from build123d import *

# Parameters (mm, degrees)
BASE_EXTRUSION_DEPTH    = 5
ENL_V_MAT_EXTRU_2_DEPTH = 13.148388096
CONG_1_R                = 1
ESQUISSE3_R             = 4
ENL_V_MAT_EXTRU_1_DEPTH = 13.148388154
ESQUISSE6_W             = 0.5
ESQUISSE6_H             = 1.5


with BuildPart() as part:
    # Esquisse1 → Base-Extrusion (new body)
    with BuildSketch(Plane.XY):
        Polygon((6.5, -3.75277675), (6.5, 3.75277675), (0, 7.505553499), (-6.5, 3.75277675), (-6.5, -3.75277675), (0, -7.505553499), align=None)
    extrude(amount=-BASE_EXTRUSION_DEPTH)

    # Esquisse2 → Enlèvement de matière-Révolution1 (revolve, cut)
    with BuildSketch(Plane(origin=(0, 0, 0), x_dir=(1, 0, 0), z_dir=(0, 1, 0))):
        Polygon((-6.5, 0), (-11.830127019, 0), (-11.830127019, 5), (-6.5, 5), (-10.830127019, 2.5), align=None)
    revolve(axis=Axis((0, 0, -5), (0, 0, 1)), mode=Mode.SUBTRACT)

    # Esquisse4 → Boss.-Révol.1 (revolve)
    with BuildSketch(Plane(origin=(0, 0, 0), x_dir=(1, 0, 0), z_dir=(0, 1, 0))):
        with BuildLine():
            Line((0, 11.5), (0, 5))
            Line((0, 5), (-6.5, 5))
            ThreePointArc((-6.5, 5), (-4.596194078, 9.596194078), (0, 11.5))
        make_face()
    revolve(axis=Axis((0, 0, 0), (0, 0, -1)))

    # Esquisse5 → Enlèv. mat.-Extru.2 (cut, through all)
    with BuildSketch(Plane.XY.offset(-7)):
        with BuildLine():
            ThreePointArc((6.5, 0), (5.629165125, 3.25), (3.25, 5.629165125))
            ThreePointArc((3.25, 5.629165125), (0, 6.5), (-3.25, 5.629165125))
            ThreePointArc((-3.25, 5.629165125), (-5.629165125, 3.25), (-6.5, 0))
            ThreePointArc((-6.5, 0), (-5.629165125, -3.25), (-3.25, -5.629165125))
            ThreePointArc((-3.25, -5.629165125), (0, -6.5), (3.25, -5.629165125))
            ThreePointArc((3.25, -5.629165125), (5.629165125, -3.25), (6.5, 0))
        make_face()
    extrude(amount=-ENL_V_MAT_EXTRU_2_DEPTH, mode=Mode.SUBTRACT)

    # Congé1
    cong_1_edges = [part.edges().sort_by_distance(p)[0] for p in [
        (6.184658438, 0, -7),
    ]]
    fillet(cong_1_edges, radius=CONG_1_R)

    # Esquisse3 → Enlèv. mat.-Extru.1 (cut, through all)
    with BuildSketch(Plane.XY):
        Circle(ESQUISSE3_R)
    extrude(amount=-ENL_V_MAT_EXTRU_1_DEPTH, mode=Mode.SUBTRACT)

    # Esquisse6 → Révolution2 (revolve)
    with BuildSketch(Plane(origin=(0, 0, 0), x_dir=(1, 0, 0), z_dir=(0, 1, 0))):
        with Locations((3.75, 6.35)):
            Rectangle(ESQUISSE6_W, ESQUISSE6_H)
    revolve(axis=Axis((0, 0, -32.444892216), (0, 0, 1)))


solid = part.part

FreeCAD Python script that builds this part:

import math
import FreeCAD as App
import Part
import Sketcher
from FreeCAD import Vector
Q = App.Units.Quantity


def edges_at(feature, points):
    """Names of the edges that pass closest to the given points."""
    edges = feature.Shape.Edges
    near = lambda p: min(range(len(edges)), key=lambda i: edges[i].distToShape(Part.Vertex(*p))[0])
    return sorted({f"Edge{near(p) + 1}" for p in points})

doc = App.newDocument("Part")
params = doc.addObject("Spreadsheet::Sheet", "Params")
for row, (alias, value) in enumerate([
    ("pad1_length", "5 mm"),
    ("sketch2_height", "5 mm"),
    ("groove_angle", "360 deg"),
    ("sketch3_radius", "6.5 mm"),
    ("revolution_angle", "360 deg"),
    ("sketch4_radius", "6.5 mm"),
    ("fillet_radius", "1 mm"),
    ("sketch5_diameter", "8 mm"),
    ("sketch6_width", "0.5 mm"),
    ("sketch6_height", "1.5 mm"),
    ("revolution2_angle", "360 deg"),
], start=1):
    params.set(f"A{row}", alias)
    params.set(f"B{row}", "=" + value)
    params.setAlias(f"B{row}", alias)

body = doc.addObject("PartDesign::Body", "Body")

# Sketch on XY plane
sketch1 = doc.addObject("Sketcher::SketchObject", "Sketch")
body.addObject(sketch1)
sketch1.AttachmentSupport = (doc.XY_Plane, [""])
sketch1.MapMode = "FlatFace"
sketch1.addGeometry([
    Part.LineSegment(Vector(6.5, -3.752777, 0), Vector(6.5, 3.752777, 0)),  # 0
    Part.LineSegment(Vector(6.5, 3.752777, 0), Vector(0, 7.505553, 0)),  # 1
    Part.LineSegment(Vector(0, 7.505553, 0), Vector(-6.5, 3.752777, 0)),  # 2
    Part.LineSegment(Vector(-6.5, 3.752777, 0), Vector(-6.5, -3.752777, 0)),  # 3
    Part.LineSegment(Vector(-6.5, -3.752777, 0), Vector(0, -7.505553, 0)),  # 4
    Part.LineSegment(Vector(0, -7.505553, 0), Vector(6.5, -3.752777, 0)),  # 5
], False)
sketch1.addConstraint([
    Sketcher.Constraint("Coincident", 0, 2, 1, 1),
    Sketcher.Constraint("Coincident", 1, 2, 2, 1),
    Sketcher.Constraint("Coincident", 2, 2, 3, 1),
    Sketcher.Constraint("Coincident", 3, 2, 4, 1),
    Sketcher.Constraint("Coincident", 4, 2, 5, 1),
    Sketcher.Constraint("Coincident", 5, 2, 0, 1),
    Sketcher.Constraint("Vertical", 0),
    Sketcher.Constraint("Vertical", 3),
    Sketcher.Constraint("Symmetric", 0, 2, 3, 2, -1, 1),
    Sketcher.Constraint("Symmetric", 1, 2, 4, 2, -1, 1),
    Sketcher.Constraint("PointOnObject", 1, 2, -2),
    Sketcher.Constraint("Parallel", 2, 5),
    Sketcher.Constraint("Horizontal", 0, 2, 2, 2),
    Sketcher.Constraint("Angle", 1, Q("150 deg")),
    Sketcher.Constraint("DistanceX", 2, 2, 0, 2, Q("13 mm")),
    Sketcher.Constraint("DistanceY", 0, 1, 0, 2, Q("7.505554 mm")),
])
pad1 = doc.addObject("PartDesign::Pad", "Pad")
body.addObject(pad1)
pad1.Profile = sketch1
pad1.setExpression("Length", "Params.pad1_length")
pad1.Reversed = True

# Sketch on XZ plane
sketch2 = doc.addObject("Sketcher::SketchObject", "Sketch001")
body.addObject(sketch2)
sketch2.AttachmentSupport = (doc.XZ_Plane, [""])
sketch2.MapMode = "FlatFace"
sketch2.addGeometry([
    Part.LineSegment(Vector(-11.830127, 0, 0), Vector(-6.5, 0, 0)),  # 0
    Part.LineSegment(Vector(-6.5, 0, 0), Vector(-10.830127, -2.5, 0)),  # 1
    Part.LineSegment(Vector(-10.830127, -2.5, 0), Vector(-6.5, -5, 0)),  # 2
    Part.LineSegment(Vector(-6.5, -5, 0), Vector(-11.830127, -5, 0)),  # 3
    Part.LineSegment(Vector(-11.830127, -5, 0), Vector(-11.830127, 0, 0)),  # 4
], False)
sketch2.addConstraint([
    Sketcher.Constraint("Coincident", 0, 2, 1, 1),
    Sketcher.Constraint("Coincident", 1, 2, 2, 1),
    Sketcher.Constraint("Coincident", 2, 2, 3, 1),
    Sketcher.Constraint("Coincident", 3, 2, 4, 1),
    Sketcher.Constraint("Coincident", 4, 2, 0, 1),
    Sketcher.Constraint("Horizontal", 0),
    Sketcher.Constraint("Horizontal", 3),
    Sketcher.Constraint("Vertical", 4),
    Sketcher.Constraint("PointOnObject", 0, 2, -1),
    Sketcher.Constraint("Vertical", 0, 2, 2, 2),
    Sketcher.Constraint("Equal", 1, 2),
    Sketcher.Constraint("DistanceY", 4, 1, 4, 2, Q("5 mm")),
    Sketcher.Constraint("Angle", 1, Q("-150 deg")),
    Sketcher.Constraint("DistanceX", 3, 2, 1, 2, Q("1 mm")),
    Sketcher.Constraint("DistanceX", 0, 2, -1, 1, Q("6.5 mm")),
])
sketch2.setExpression("Constraints[11]", "Params.sketch2_height")
groove = doc.addObject("PartDesign::Groove", "Groove")
body.addObject(groove)
groove.Profile = sketch2
groove.ReferenceAxis = (sketch2, ["V_Axis"])
groove.setExpression("Angle", "Params.groove_angle")

# Sketch on XZ plane
sketch3 = doc.addObject("Sketcher::SketchObject", "Sketch002")
body.addObject(sketch3)
sketch3.AttachmentSupport = (doc.XZ_Plane, [""])
sketch3.MapMode = "FlatFace"
sketch3.addGeometry([
    Part.LineSegment(Vector(0, -5, 0), Vector(0, -11.5, 0)),
    Part.ArcOfCircle(Part.Circle(Vector(0, -5, 0), Vector(0, 0, 1), 6.5), math.radians(180), math.radians(270)),
    Part.LineSegment(Vector(-6.5, -5, 0), Vector(0, -5, 0)),
], False)
sketch3.addConstraint([
    Sketcher.Constraint("Coincident", 0, 2, 1, 2),
    Sketcher.Constraint("Coincident", 1, 1, 2, 1),
    Sketcher.Constraint("Coincident", 2, 2, 0, 1),
    Sketcher.Constraint("Vertical", 0),
    Sketcher.Constraint("Horizontal", 2),
    Sketcher.Constraint("Coincident", 2, 2, 1, 3),
    Sketcher.Constraint("PointOnObject", 1, 3, -2),
    Sketcher.Constraint("Radius", 1, Q("6.5 mm")),
    Sketcher.Constraint("DistanceY", 1, 3, -1, 1, Q("5 mm")),
])
sketch3.setExpression("Constraints[7]", "Params.sketch3_radius")
revolution = doc.addObject("PartDesign::Revolution", "Revolution")
body.addObject(revolution)
revolution.Profile = sketch3
revolution.ReferenceAxis = (sketch3, ["V_Axis"])
revolution.setExpression("Angle", "Params.revolution_angle")

# Sketch on XY plane
sketch4 = doc.addObject("Sketcher::SketchObject", "Sketch003")
body.addObject(sketch4)
sketch4.AttachmentSupport = (doc.XY_Plane, [""])
sketch4.MapMode = "FlatFace"
sketch4.AttachmentOffset = App.Placement(Vector(0, 0, -7), App.Rotation())
sketch4.addGeometry([
    Part.ArcOfCircle(Part.Circle(Vector(0, 0, 0), Vector(0, 0, 1), 6.5), math.radians(0), math.radians(60)),  # 0
    Part.ArcOfCircle(Part.Circle(Vector(0, 0, 0), Vector(0, 0, 1), 6.5), math.radians(60), math.radians(120)),  # 1
    Part.ArcOfCircle(Part.Circle(Vector(0, 0, 0), Vector(0, 0, 1), 6.5), math.radians(120), math.radians(180)),  # 2
    Part.ArcOfCircle(Part.Circle(Vector(0, 0, 0), Vector(0, 0, 1), 6.5), math.radians(180), math.radians(240)),  # 3
    Part.ArcOfCircle(Part.Circle(Vector(0, 0, 0), Vector(0, 0, 1), 6.5), math.radians(-120), math.radians(-60)),  # 4
    Part.ArcOfCircle(Part.Circle(Vector(0, 0, 0), Vector(0, 0, 1), 6.5), math.radians(-60), math.radians(0)),  # 5
], False)
sketch4.addConstraint([
    Sketcher.Constraint("Tangent", 0, 2, 1, 1),
    Sketcher.Constraint("Tangent", 1, 2, 2, 1),
    Sketcher.Constraint("Tangent", 2, 2, 3, 1),
    Sketcher.Constraint("Tangent", 3, 2, 4, 1),
    Sketcher.Constraint("Tangent", 4, 2, 5, 1),
    Sketcher.Constraint("Tangent", 5, 2, 0, 1),
    Sketcher.Constraint("Coincident", 0, 3, -1, 1),
    Sketcher.Constraint("Coincident", 2, 3, -1, 1),
    Sketcher.Constraint("Equal", 2, 3),
    Sketcher.Constraint("PointOnObject", 2, 2, -1),
    Sketcher.Constraint("PointOnObject", 5, 2, -1),
    Sketcher.Constraint("Horizontal", 0, 2, 1, 2),
    Sketcher.Constraint("Horizontal", 3, 2, 4, 2),
    Sketcher.Constraint("Vertical", 1, 2, 3, 2),
    Sketcher.Constraint("Radius", 0, Q("6.5 mm")),
    Sketcher.Constraint("DistanceX", 1, 2, 0, 2, Q("6.5 mm")),
])
sketch4.setExpression("Constraints[14]", "Params.sketch4_radius")
pocket1 = doc.addObject("PartDesign::Pocket", "Pocket")
body.addObject(pocket1)
pocket1.Profile = sketch4
pocket1.Type = "ThroughAll"
doc.recompute()

fillet = doc.addObject("PartDesign::Fillet", "Fillet")
body.addObject(fillet)
fillet.Base = (pocket1, edges_at(pocket1, [(6.185, 0, -7)]))
fillet.setExpression("Radius", "Params.fillet_radius")

# Sketch on XY plane
sketch5 = doc.addObject("Sketcher::SketchObject", "Sketch004")
body.addObject(sketch5)
sketch5.AttachmentSupport = (doc.XY_Plane, [""])
sketch5.MapMode = "FlatFace"
sketch5.addGeometry(Part.Circle(Vector(0, 0, 0), Vector(0, 0, 1), 4), False)
sketch5.addConstraint([
    Sketcher.Constraint("Coincident", 0, 3, -1, 1),
    Sketcher.Constraint("Diameter", 0, Q("8 mm")),
])
sketch5.setExpression("Constraints[1]", "Params.sketch5_diameter")
pocket2 = doc.addObject("PartDesign::Pocket", "Pocket001")
body.addObject(pocket2)
pocket2.Profile = sketch5
pocket2.Type = "ThroughAll"

# Sketch on XZ plane
sketch6 = doc.addObject("Sketcher::SketchObject", "Sketch005")
body.addObject(sketch6)
sketch6.AttachmentSupport = (doc.XZ_Plane, [""])
sketch6.MapMode = "FlatFace"
sketch6.addGeometry([
    Part.LineSegment(Vector(3.5, -7.1, 0), Vector(3.5, -5.6, 0)),
    Part.LineSegment(Vector(3.5, -5.6, 0), Vector(4, -5.6, 0)),
    Part.LineSegment(Vector(4, -5.6, 0), Vector(4, -7.1, 0)),
    Part.LineSegment(Vector(4, -7.1, 0), Vector(3.5, -7.1, 0)),
], False)
sketch6.addConstraint([
    Sketcher.Constraint("Coincident", 0, 2, 1, 1),
    Sketcher.Constraint("Coincident", 1, 2, 2, 1),
    Sketcher.Constraint("Coincident", 2, 2, 3, 1),
    Sketcher.Constraint("Coincident", 3, 2, 0, 1),
    Sketcher.Constraint("Vertical", 0),
    Sketcher.Constraint("Horizontal", 1),
    Sketcher.Constraint("Vertical", 2),
    Sketcher.Constraint("Horizontal", 3),
    Sketcher.Constraint("DistanceX", 1, 1, 1, 2, Q("0.5 mm")),
    Sketcher.Constraint("DistanceY", 0, 1, 0, 2, Q("1.5 mm")),
    Sketcher.Constraint("DistanceX", -1, 1, 1, 2, Q("4 mm")),
    Sketcher.Constraint("DistanceY", 0, 2, -1, 1, Q("5.6 mm")),
])
sketch6.setExpression("Constraints[8]", "Params.sketch6_width")
sketch6.setExpression("Constraints[9]", "Params.sketch6_height")
revolution2 = doc.addObject("PartDesign::Revolution", "Revolution001")
body.addObject(revolution2)
revolution2.Profile = sketch6
revolution2.ReferenceAxis = (sketch6, ["V_Axis"])
revolution2.setExpression("Angle", "Params.revolution2_angle")

doc.recompute()
